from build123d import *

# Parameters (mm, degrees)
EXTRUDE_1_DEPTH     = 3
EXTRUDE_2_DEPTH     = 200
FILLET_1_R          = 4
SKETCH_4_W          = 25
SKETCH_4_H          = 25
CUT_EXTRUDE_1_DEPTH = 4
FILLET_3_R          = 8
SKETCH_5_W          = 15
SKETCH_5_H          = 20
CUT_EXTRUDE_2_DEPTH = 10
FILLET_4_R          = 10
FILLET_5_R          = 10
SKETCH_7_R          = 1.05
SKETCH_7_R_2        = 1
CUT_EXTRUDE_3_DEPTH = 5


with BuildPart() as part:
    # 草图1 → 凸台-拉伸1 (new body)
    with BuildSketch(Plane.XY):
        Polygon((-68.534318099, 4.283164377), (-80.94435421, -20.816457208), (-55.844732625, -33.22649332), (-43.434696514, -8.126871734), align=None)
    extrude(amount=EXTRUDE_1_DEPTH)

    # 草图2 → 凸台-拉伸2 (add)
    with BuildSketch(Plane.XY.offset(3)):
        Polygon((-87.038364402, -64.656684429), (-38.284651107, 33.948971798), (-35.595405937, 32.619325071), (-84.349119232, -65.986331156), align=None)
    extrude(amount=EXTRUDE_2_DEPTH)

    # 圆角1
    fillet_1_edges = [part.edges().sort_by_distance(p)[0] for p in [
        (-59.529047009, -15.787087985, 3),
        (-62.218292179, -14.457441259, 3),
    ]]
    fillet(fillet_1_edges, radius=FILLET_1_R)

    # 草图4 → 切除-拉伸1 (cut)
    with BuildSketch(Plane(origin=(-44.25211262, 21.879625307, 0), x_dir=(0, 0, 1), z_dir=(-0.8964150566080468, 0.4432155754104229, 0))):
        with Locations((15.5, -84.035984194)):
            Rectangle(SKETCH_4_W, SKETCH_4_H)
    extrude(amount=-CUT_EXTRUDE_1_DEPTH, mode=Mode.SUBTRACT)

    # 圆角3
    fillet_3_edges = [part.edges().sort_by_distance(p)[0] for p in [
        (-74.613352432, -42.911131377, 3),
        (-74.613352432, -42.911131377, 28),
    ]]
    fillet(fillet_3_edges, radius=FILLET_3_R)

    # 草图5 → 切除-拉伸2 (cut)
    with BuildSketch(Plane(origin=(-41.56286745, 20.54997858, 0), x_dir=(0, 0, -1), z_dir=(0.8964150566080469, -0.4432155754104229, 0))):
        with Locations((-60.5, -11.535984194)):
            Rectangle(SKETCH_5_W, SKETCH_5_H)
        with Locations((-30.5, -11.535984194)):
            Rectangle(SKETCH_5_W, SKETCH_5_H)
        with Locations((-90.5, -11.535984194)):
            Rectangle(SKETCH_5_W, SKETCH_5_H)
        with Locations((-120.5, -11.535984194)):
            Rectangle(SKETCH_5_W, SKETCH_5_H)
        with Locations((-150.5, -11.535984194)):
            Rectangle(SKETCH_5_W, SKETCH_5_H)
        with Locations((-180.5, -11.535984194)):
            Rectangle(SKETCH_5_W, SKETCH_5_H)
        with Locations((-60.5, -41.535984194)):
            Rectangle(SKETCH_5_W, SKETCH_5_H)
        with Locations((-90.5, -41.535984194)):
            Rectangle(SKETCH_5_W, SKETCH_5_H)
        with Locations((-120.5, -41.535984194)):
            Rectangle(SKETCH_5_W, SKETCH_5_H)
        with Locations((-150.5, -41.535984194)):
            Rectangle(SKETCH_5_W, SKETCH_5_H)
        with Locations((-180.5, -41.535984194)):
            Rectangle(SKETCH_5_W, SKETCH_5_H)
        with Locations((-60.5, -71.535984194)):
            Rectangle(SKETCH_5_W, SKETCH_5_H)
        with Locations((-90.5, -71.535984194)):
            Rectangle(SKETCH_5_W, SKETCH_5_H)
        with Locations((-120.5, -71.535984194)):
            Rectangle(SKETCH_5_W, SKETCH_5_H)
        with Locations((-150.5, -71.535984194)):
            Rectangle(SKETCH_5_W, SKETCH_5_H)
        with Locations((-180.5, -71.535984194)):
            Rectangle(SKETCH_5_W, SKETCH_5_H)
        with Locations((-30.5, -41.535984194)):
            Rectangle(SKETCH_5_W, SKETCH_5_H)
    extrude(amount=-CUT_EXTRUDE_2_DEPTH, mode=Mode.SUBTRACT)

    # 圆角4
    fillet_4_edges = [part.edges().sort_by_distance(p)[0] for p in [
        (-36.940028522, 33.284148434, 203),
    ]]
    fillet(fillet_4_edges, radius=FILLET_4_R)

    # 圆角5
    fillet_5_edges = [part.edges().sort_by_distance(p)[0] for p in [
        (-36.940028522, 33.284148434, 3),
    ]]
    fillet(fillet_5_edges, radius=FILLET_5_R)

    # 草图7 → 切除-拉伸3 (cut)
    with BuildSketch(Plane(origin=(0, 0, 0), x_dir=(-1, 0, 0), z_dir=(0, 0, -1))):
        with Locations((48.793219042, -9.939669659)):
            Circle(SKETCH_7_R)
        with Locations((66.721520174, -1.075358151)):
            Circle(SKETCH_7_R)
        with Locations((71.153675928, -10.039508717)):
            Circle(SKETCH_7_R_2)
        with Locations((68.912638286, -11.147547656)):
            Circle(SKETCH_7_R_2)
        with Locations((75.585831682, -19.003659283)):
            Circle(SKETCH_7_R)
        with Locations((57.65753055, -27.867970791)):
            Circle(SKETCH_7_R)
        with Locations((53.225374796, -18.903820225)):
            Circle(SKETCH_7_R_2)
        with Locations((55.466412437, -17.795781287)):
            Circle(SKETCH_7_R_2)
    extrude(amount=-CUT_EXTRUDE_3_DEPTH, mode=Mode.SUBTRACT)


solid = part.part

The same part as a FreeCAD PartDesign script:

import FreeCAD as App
import Part
import Sketcher
Q = App.Units.Quantity


def edges_at(feature, points):
    """Names of the edges that pass closest to the given points."""
    edges = feature.Shape.Edges
    near = lambda p: min(range(len(edges)), key=lambda i: edges[i].distToShape(Part.Vertex(*p))[0])
    return sorted({f"Edge{near(p) + 1}" for p in points})


def add_polygon(sketch, points):
    """Adds a closed chain of lines whose ends are joined by coincident constraints."""
    first, n = sketch.GeometryCount, len(points)
    for a, b in zip(points, points[1:] + points[:1]):
        sketch.addGeometry(Part.LineSegment(App.Vector(*a, 0), App.Vector(*b, 0)), False)
    for i in range(n):
        sketch.addConstraint(Sketcher.Constraint("Coincident", first + i, 2, first + (i + 1) % n, 1))

doc = App.newDocument("Part")
params = doc.addObject("Spreadsheet::Sheet", "Params")
for row, (alias, value) in enumerate([
    ("sketch1_length", "28 mm"),
    ("pad1_length", "3 mm"),
    ("sketch2_length", "110 mm"),
    ("sketch2_length2", "3 mm"),
    ("pad2_length", "200 mm"),
    ("fillet_radius", "4 mm"),
    ("sketch3_width", "25 mm"),
    ("pocket1_length", "4 mm"),
    ("fillet2_radius", "8 mm"),
    ("sketch4_width", "15 mm"),
    ("sketch4_height", "20 mm"),
    ("pocket2_length", "10 mm"),
    ("fillet3_radius", "10 mm"),
    ("fillet4_radius", "10 mm"),
    ("sketch5_diameter", "2 mm"),
    ("sketch5_diameter2", "2.1 mm"),
    ("pocket3_length", "5 mm"),
], start=1):
    params.set(f"A{row}", alias)
    params.set(f"B{row}", "=" + value)
    params.setAlias(f"B{row}", alias)

body = doc.addObject("PartDesign::Body", "Body")

sketch1 = body.newObject("Sketcher::SketchObject", "Sketch")
sketch1.AttachmentSupport = (doc.getObject("XY_Plane"), [""])
sketch1.MapMode = "FlatFace"
add_polygon(sketch1, [(-69, 4), (-81, -21), (-56, -33), (-43, -8)])
sketch1.addConstraint(Sketcher.Constraint("Perpendicular", 0, 1))
sketch1.addConstraint(Sketcher.Constraint("Perpendicular", 1, 2))
sketch1.addConstraint(Sketcher.Constraint("Perpendicular", 2, 3))
sketch1.addConstraint(Sketcher.Constraint("Equal", 0, 1))
sketch1.addConstraint(Sketcher.Constraint("Distance", 0, Q("28 mm")))
sketch1.addConstraint(Sketcher.Constraint("DistanceY", 2, 2, -1, 1, Q("8.126872 mm")))
sketch1.addConstraint(Sketcher.Constraint("DistanceX", 3, 2, -1, 1, Q("68.534318 mm")))
sketch1.addConstraint(Sketcher.Constraint("DistanceX", 0, 2, 1, 2, Q("25.099622 mm")))
sketch1.setExpression("Constraints[8]", "Params.sketch1_length")
pad1 = body.newObject("PartDesign::Pad", "Pad")
pad1.Profile = sketch1
pad1.setExpression("Length", "Params.pad1_length")

sketch2 = body.newObject("Sketcher::SketchObject", "Sketch001")
sketch2.AttachmentSupport = (doc.getObject("XY_Plane"), [""])
sketch2.MapMode = "FlatFace"
sketch2.AttachmentOffset = App.Placement(App.Vector(0, 0, 3), App.Rotation())
add_polygon(sketch2, [(-38.3, 33.9), (-87, -64.7), (-84.3, -66), (-35.6, 32.6)])
sketch2.addConstraint(Sketcher.Constraint("Perpendicular", 0, 1))
sketch2.addConstraint(Sketcher.Constraint("Perpendicular", 1, 2))
sketch2.addConstraint(Sketcher.Constraint("Perpendicular", 2, 3))
sketch2.addConstraint(Sketcher.Constraint("Distance", 0, Q("110 mm")))
sketch2.addConstraint(Sketcher.Constraint("Distance", 1, Q("3 mm")))
sketch2.addConstraint(Sketcher.Constraint("DistanceX", 1, 2, -1, 1, Q("84.349119 mm")))
sketch2.addConstraint(Sketcher.Constraint("DistanceY", 1, 2, -1, 1, Q("65.986331 mm")))
sketch2.addConstraint(Sketcher.Constraint("DistanceX", 3, 2, -1, 1, Q("38.284651 mm")))
sketch2.setExpression("Constraints[7]", "Params.sketch2_length")
sketch2.setExpression("Constraints[8]", "Params.sketch2_length2")
pad2 = body.newObject("PartDesign::Pad", "Pad001")
pad2.Profile = sketch2
pad2.setExpression("Length", "Params.pad2_length")
doc.recompute()

fillet = body.newObject("PartDesign::Fillet", "Fillet")
fillet.Base = (pad2, edges_at(pad2, [(-59.529, -15.787, 3), (-62.218, -14.457, 3)]))
fillet.setExpression("Radius", "Params.fillet_radius")

sketch3 = body.newObject("Sketcher::SketchObject", "Sketch002")
sketch3.Placement = App.Placement(App.Vector(-44.252113, 21.879625, 0), App.Rotation(App.Vector(0, 0, 1), App.Vector(0.443215575, 0.896415057, 0), App.Vector(-0.896415057, 0.443215575, 0), "ZXY"))
add_polygon(sketch3, [(3, -72), (3, -97), (28, -97), (28, -72)])
sketch3.addConstraint(Sketcher.Constraint("Vertical", 0))
sketch3.addConstraint(Sketcher.Constraint("Horizontal", 1))
sketch3.addConstraint(Sketcher.Constraint("Vertical", 2))
sketch3.addConstraint(Sketcher.Constraint("Horizontal", 3))
sketch3.addConstraint(Sketcher.Constraint("Equal", 3, 0))
sketch3.addConstraint(Sketcher.Constraint("DistanceX", 1, 1, 1, 2, Q("25 mm")))
sketch3.addConstraint(Sketcher.Constraint("DistanceX", -1, 1, 0, 2, Q("3 mm")))
sketch3.addConstraint(Sketcher.Constraint("DistanceY", 0, 2, -1, 1, Q("96.535984 mm")))
sketch3.setExpression("Constraints[9]", "Params.sketch3_width")
pocket1 = body.newObject("PartDesign::Pocket", "Pocket")
pocket1.Profile = sketch3
pocket1.setExpression("Length", "Params.pocket1_length")
doc.recompute()

fillet2 = body.newObject("PartDesign::Fillet", "Fillet001")
fillet2.Base = (pocket1, edges_at(pocket1, [(-74.613, -42.911, 3), (-74.613, -42.911, 28)]))
fillet2.setExpression("Radius", "Params.fillet2_radius")

sketch4 = body.newObject("Sketcher::SketchObject", "Sketch003")
sketch4.Placement = App.Placement(App.Vector(-41.562867, 20.549979, 0), App.Rotation(App.Vector(0, 0, -1), App.Vector(0.443215575, 0.896415057, 0), App.Vector(0.896415057, -0.443215575, 0), "ZXY"))
add_polygon(sketch4, [(-68, -2), (-68, -22), (-53, -22), (-53, -2)])
add_polygon(sketch4, [(-38, -2), (-38, -22), (-23, -22), (-23, -2)])
add_polygon(sketch4, [(-98, -2), (-98, -22), (-83, -22), (-83, -2)])
add_polygon(sketch4, [(-128, -2), (-128, -22), (-113, -22), (-113, -2)])
add_polygon(sketch4, [(-158, -2), (-158, -22), (-143, -22), (-143, -2)])
add_polygon(sketch4, [(-188, -2), (-188, -22), (-173, -22), (-173, -2)])
add_polygon(sketch4, [(-68, -32), (-68, -52), (-53, -52), (-53, -32)])
add_polygon(sketch4, [(-98, -32), (-98, -52), (-83, -52), (-83, -32)])
add_polygon(sketch4, [(-128, -32), (-128, -52), (-113, -52), (-113, -32)])
add_polygon(sketch4, [(-158, -32), (-158, -52), (-143, -52), (-143, -32)])
add_polygon(sketch4, [(-188, -32), (-188, -52), (-173, -52), (-173, -32)])
add_polygon(sketch4, [(-68, -62), (-68, -82), (-53, -82), (-53, -62)])
add_polygon(sketch4, [(-98, -62), (-98, -82), (-83, -82), (-83, -62)])
add_polygon(sketch4, [(-128, -62), (-128, -82), (-113, -82), (-113, -62)])
add_polygon(sketch4, [(-158, -62), (-158, -82), (-143, -82), (-143, -62)])
add_polygon(sketch4, [(-188, -62), (-188, -82), (-173, -82), (-173, -62)])
add_polygon(sketch4, [(-38, -32), (-38, -52), (-23, -52), (-23, -32)])
sketch4.addConstraint(Sketcher.Constraint("Vertical", 0))
sketch4.addConstraint(Sketcher.Constraint("Horizontal", 1))
sketch4.addConstraint(Sketcher.Constraint("Vertical", 2))
sketch4.addConstraint(Sketcher.Constraint("Horizontal", 3))
sketch4.addConstraint(Sketcher.Constraint("Vertical", 4))
sketch4.addConstraint(Sketcher.Constraint("Horizontal", 5))
sketch4.addConstraint(Sketcher.Constraint("Vertical", 6))
sketch4.addConstraint(Sketcher.Constraint("Horizontal", 7))
sketch4.addConstraint(Sketcher.Constraint("Vertical", 8))
sketch4.addConstraint(Sketcher.Constraint("Horizontal", 9))
sketch4.addConstraint(Sketcher.Constraint("Vertical", 10))
sketch4.addConstraint(Sketcher.Constraint("Horizontal", 11))
sketch4.addConstraint(Sketcher.Constraint("Vertical", 12))
sketch4.addConstraint(Sketcher.Constraint("Horizontal", 13))
sketch4.addConstraint(Sketcher.Constraint("Vertical", 14))
sketch4.addConstraint(Sketcher.Constraint("Horizontal", 15))
sketch4.addConstraint(Sketcher.Constraint("Vertical", 16))
sketch4.addConstraint(Sketcher.Constraint("Horizontal", 17))
sketch4.addConstraint(Sketcher.Constraint("Vertical", 18))
sketch4.addConstraint(Sketcher.Constraint("Horizontal", 19))
sketch4.addConstraint(Sketcher.Constraint("Vertical", 20))
sketch4.addConstraint(Sketcher.Constraint("Horizontal", 21))
sketch4.addConstraint(Sketcher.Constraint("Vertical", 22))
sketch4.addConstraint(Sketcher.Constraint("Horizontal", 23))
sketch4.addConstraint(Sketcher.Constraint("Vertical", 24))
sketch4.addConstraint(Sketcher.Constraint("Horizontal", 25))
sketch4.addConstraint(Sketcher.Constraint("Vertical", 26))
sketch4.addConstraint(Sketcher.Constraint("Horizontal", 27))
sketch4.addConstraint(Sketcher.Constraint("Vertical", 28))
sketch4.addConstraint(Sketcher.Constraint("Horizontal", 29))
sketch4.addConstraint(Sketcher.Constraint("Vertical", 30))
sketch4.addConstraint(Sketcher.Constraint("Horizontal", 31))
sketch4.addConstraint(Sketcher.Constraint("Vertical", 32))
sketch4.addConstraint(Sketcher.Constraint("Horizontal", 33))
sketch4.addConstraint(Sketcher.Constraint("Vertical", 34))
sketch4.addConstraint(Sketcher.Constraint("Horizontal", 35))
sketch4.addConstraint(Sketcher.Constraint("Vertical", 36))
sketch4.addConstraint(Sketcher.Constraint("Horizontal", 37))
sketch4.addConstraint(Sketcher.Constraint("Vertical", 38))
sketch4.addConstraint(Sketcher.Constraint("Horizontal", 39))
sketch4.addConstraint(Sketcher.Constraint("Vertical", 40))
sketch4.addConstraint(Sketcher.Constraint("Horizontal", 41))
sketch4.addConstraint(Sketcher.Constraint("Vertical", 42))
sketch4.addConstraint(Sketcher.Constraint("Horizontal", 43))
sketch4.addConstraint(Sketcher.Constraint("Vertical", 44))
sketch4.addConstraint(Sketcher.Constraint("Horizontal", 45))
sketch4.addConstraint(Sketcher.Constraint("Vertical", 46))
sketch4.addConstraint(Sketcher.Constraint("Horizontal", 47))
sketch4.addConstraint(Sketcher.Constraint("Vertical", 48))
sketch4.addConstraint(Sketcher.Constraint("Horizontal", 49))
sketch4.addConstraint(Sketcher.Constraint("Vertical", 50))
sketch4.addConstraint(Sketcher.Constraint("Horizontal", 51))
sketch4.addConstraint(Sketcher.Constraint("Vertical", 52))
sketch4.addConstraint(Sketcher.Constraint("Horizontal", 53))
sketch4.addConstraint(Sketcher.Constraint("Vertical", 54))
sketch4.addConstraint(Sketcher.Constraint("Horizontal", 55))
sketch4.addConstraint(Sketcher.Constraint("Vertical", 56))
sketch4.addConstraint(Sketcher.Constraint("Horizontal", 57))
sketch4.addConstraint(Sketcher.Constraint("Vertical", 58))
sketch4.addConstraint(Sketcher.Constraint("Horizontal", 59))
sketch4.addConstraint(Sketcher.Constraint("Vertical", 60))
sketch4.addConstraint(Sketcher.Constraint("Horizontal", 61))
sketch4.addConstraint(Sketcher.Constraint("Vertical", 62))
sketch4.addConstraint(Sketcher.Constraint("Horizontal", 63))
sketch4.addConstraint(Sketcher.Constraint("Vertical", 64))
sketch4.addConstraint(Sketcher.Constraint("Horizontal", 65))
sketch4.addConstraint(Sketcher.Constraint("Vertical", 66))
sketch4.addConstraint(Sketcher.Constraint("Horizontal", 67))
sketch4.addConstraint(Sketcher.Constraint("Horizontal", 1, 2, 4, 2))
sketch4.addConstraint(Sketcher.Constraint("Horizontal", 3, 2, 6, 2))
sketch4.addConstraint(Sketcher.Constraint("Horizontal", 5, 2, 8, 2))
sketch4.addConstraint(Sketcher.Constraint("Horizontal", 7, 2, 10, 2))
sketch4.addConstraint(Sketcher.Constraint("Horizontal", 9, 2, 12, 2))
sketch4.addConstraint(Sketcher.Constraint("Horizontal", 11, 2, 14, 2))
sketch4.addConstraint(Sketcher.Constraint("Horizontal", 13, 2, 16, 2))
sketch4.addConstraint(Sketcher.Constraint("Horizontal", 15, 2, 18, 2))
sketch4.addConstraint(Sketcher.Constraint("Horizontal", 17, 2, 20, 2))
sketch4.addConstraint(Sketcher.Constraint("Horizontal", 19, 2, 22, 2))
sketch4.addConstraint(Sketcher.Constraint("Horizontal", 25, 2, 28, 2))
sketch4.addConstraint(Sketcher.Constraint("Horizontal", 27, 2, 30, 2))
sketch4.addConstraint(Sketcher.Constraint("Horizontal", 29, 2, 32, 2))
sketch4.addConstraint(Sketcher.Constraint("Horizontal", 31, 2, 34, 2))
sketch4.addConstraint(Sketcher.Constraint("Horizontal", 33, 2, 36, 2))
sketch4.addConstraint(Sketcher.Constraint("Horizontal", 35, 2, 38, 2))
sketch4.addConstraint(Sketcher.Constraint("Horizontal", 37, 2, 40, 2))
sketch4.addConstraint(Sketcher.Constraint("Horizontal", 39, 2, 42, 2))
sketch4.addConstraint(Sketcher.Constraint("Horizontal", 45, 2, 48, 2))
sketch4.addConstraint(Sketcher.Constraint("Horizontal", 47, 2, 50, 2))
sketch4.addConstraint(Sketcher.Constraint("Horizontal", 49, 2, 52, 2))
sketch4.addConstraint(Sketcher.Constraint("Horizontal", 51, 2, 54, 2))
sketch4.addConstraint(Sketcher.Constraint("Horizontal", 53, 2, 56, 2))
sketch4.addConstraint(Sketcher.Constraint("Horizontal", 55, 2, 58, 2))
sketch4.addConstraint(Sketcher.Constraint("Horizontal", 57, 2, 60, 2))
sketch4.addConstraint(Sketcher.Constraint("Horizontal", 59, 2, 62, 2))
sketch4.addConstraint(Sketcher.Constraint("Horizontal", 41, 2, 64, 2))
sketch4.addConstraint(Sketcher.Constraint("Horizontal", 43, 2, 66, 2))
sketch4.addConstraint(Sketcher.Constraint("Vertical", 3, 2, 24, 2))
sketch4.addConstraint(Sketcher.Constraint("Vertical", 2, 2, 25, 2))
sketch4.addConstraint(Sketcher.Constraint("Vertical", 11, 2, 28, 2))
sketch4.addConstraint(Sketcher.Constraint("Vertical", 10, 2, 29, 2))
sketch4.addConstraint(Sketcher.Constraint("Vertical", 15, 2, 32, 2))
sketch4.addConstraint(Sketcher.Constraint("Vertical", 14, 2, 33, 2))
sketch4.addConstraint(Sketcher.Constraint("Vertical", 19, 2, 36, 2))
sketch4.addConstraint(Sketcher.Constraint("Vertical", 18, 2, 37, 2))
sketch4.addConstraint(Sketcher.Constraint("Vertical", 23, 2, 40, 2))
sketch4.addConstraint(Sketcher.Constraint("Vertical", 22, 2, 41, 2))
sketch4.addConstraint(Sketcher.Constraint("Vertical", 27, 2, 44, 2))
sketch4.addConstraint(Sketcher.Constraint("Vertical", 26, 2, 45, 2))
sketch4.addConstraint(Sketcher.Constraint("Vertical", 31, 2, 48, 2))
sketch4.addConstraint(Sketcher.Constraint("Vertical", 30, 2, 49, 2))
sketch4.addConstraint(Sketcher.Constraint("Vertical", 35, 2, 52, 2))
sketch4.addConstraint(Sketcher.Constraint("Vertical", 34, 2, 53, 2))
sketch4.addConstraint(Sketcher.Constraint("Vertical", 39, 2, 56, 2))
sketch4.addConstraint(Sketcher.Constraint("Vertical", 38, 2, 57, 2))
sketch4.addConstraint(Sketcher.Constraint("Vertical", 43, 2, 60, 2))
sketch4.addConstraint(Sketcher.Constraint("Vertical", 42, 2, 61, 2))
sketch4.addConstraint(Sketcher.Constraint("Vertical", 7, 2, 64, 2))
sketch4.addConstraint(Sketcher.Constraint("Vertical", 6, 2, 65, 2))
sketch4.addConstraint(Sketcher.Constraint("Equal", 3, 5))
sketch4.addConstraint(Sketcher.Constraint("Equal", 7, 9))
sketch4.addConstraint(Sketcher.Constraint("Equal", 11, 13))
sketch4.addConstraint(Sketcher.Constraint("Equal", 15, 17))
sketch4.addConstraint(Sketcher.Constraint("Equal", 19, 21))
sketch4.addConstraint(Sketcher.Constraint("Equal", 22, 24))
sketch4.addConstraint(Sketcher.Constraint("Equal", 42, 44))
sketch4.addConstraint(Sketcher.Constraint("DistanceX", 1, 1, 1, 2, Q("15 mm")))
sketch4.addConstraint(Sketcher.Constraint("DistanceY", 0, 2, 0, 1, Q("20 mm")))
sketch4.addConstraint(Sketcher.Constraint("DistanceX", 0, 2, -1, 1, Q("68 mm")))
sketch4.addConstraint(Sketcher.Constraint("DistanceX", 4, 2, -1, 1, Q("38 mm")))
sketch4.addConstraint(Sketcher.Constraint("DistanceX", 8, 2, -1, 1, Q("98 mm")))
sketch4.addConstraint(Sketcher.Constraint("DistanceX", 12, 2, -1, 1, Q("128 mm")))
sketch4.addConstraint(Sketcher.Constraint("DistanceX", 16, 2, -1, 1, Q("158 mm")))
sketch4.addConstraint(Sketcher.Constraint("DistanceX", 20, 2, -1, 1, Q("188 mm")))
sketch4.addConstraint(Sketcher.Constraint("DistanceY", 0, 2, -1, 1, Q("21.535984 mm")))
sketch4.addConstraint(Sketcher.Constraint("DistanceY", 24, 2, -1, 1, Q("51.535984 mm")))
sketch4.addConstraint(Sketcher.Constraint("DistanceY", 44, 2, -1, 1, Q("81.535984 mm")))
sketch4.setExpression("Constraints[193]", "Params.sketch4_width")
sketch4.setExpression("Constraints[194]", "Params.sketch4_height")
pocket2 = body.newObject("PartDesign::Pocket", "Pocket001")
pocket2.Profile = sketch4
pocket2.setExpression("Length", "Params.pocket2_length")
doc.recompute()

fillet3 = body.newObject("PartDesign::Fillet", "Fillet002")
fillet3.Base = (pocket2, edges_at(pocket2, [(-36.94, 33.284, 203)]))
fillet3.setExpression("Radius", "Params.fillet3_radius")
doc.recompute()

fillet4 = body.newObject("PartDesign::Fillet", "Fillet003")
fillet4.Base = (fillet3, edges_at(fillet3, [(-36.94, 33.284, 3)]))
fillet4.setExpression("Radius", "Params.fillet4_radius")

sketch5 = body.newObject("Sketcher::SketchObject", "Sketch004")
sketch5.AttachmentSupport = (doc.getObject("XY_Plane"), [""])
sketch5.MapMode = "FlatFace"
sketch5.addGeometry(Part.Circle(App.Vector(-48.8, -9.9, 0), App.Vector(0, 0, 1), 1.1), False)
sketch5.addGeometry(Part.Circle(App.Vector(-66.7, -1.1, 0), App.Vector(0, 0, 1), 1.1), False)
sketch5.addGeometry(Part.Circle(App.Vector(-71.2, -10, 0), App.Vector(0, 0, 1), 1), False)
sketch5.addGeometry(Part.Circle(App.Vector(-68.9, -11.1, 0), App.Vector(0, 0, 1), 1), False)
sketch5.addGeometry(Part.Circle(App.Vector(-75.6, -19, 0), App.Vector(0, 0, 1), 1.1), False)
sketch5.addGeometry(Part.Circle(App.Vector(-57.7, -27.9, 0), App.Vector(0, 0, 1), 1.1), False)
sketch5.addGeometry(Part.Circle(App.Vector(-53.2, -18.9, 0), App.Vector(0, 0, 1), 1), False)
sketch5.addGeometry(Part.Circle(App.Vector(-55.5, -17.8, 0), App.Vector(0, 0, 1), 1), False)
sketch5.addConstraint(Sketcher.Constraint("Equal", 0, 1))
sketch5.addConstraint(Sketcher.Constraint("Equal", 2, 3))
sketch5.addConstraint(Sketcher.Constraint("Equal", 1, 4))
sketch5.addConstraint(Sketcher.Constraint("Equal", 4, 5))
sketch5.addConstraint(Sketcher.Constraint("Equal", 3, 6))
sketch5.addConstraint(Sketcher.Constraint("Equal", 6, 7))
sketch5.addConstraint(Sketcher.Constraint("Diameter", 2, Q("2 mm")))
sketch5.addConstraint(Sketcher.Constraint("Diameter", 0, Q("2.1 mm")))
sketch5.addConstraint(Sketcher.Constraint("DistanceX", 1, 3, 0, 3, Q("17.928301 mm")))
sketch5.addConstraint(Sketcher.Constraint("DistanceY", 4, 3, 1, 3, Q("17.928301 mm")))
sketch5.addConstraint(Sketcher.Constraint("DistanceY", 5, 3, 0, 3, Q("17.928301 mm")))
sketch5.addConstraint(Sketcher.Constraint("DistanceX", 4, 3, 5, 3, Q("17.928301 mm")))
sketch5.addConstraint(Sketcher.Constraint("DistanceX", 2, 3, 6, 3, Q("17.928301 mm")))
sketch5.addConstraint(Sketcher.Constraint("DistanceX", 0, 3, -1, 1, Q("48.793219 mm")))
sketch5.addConstraint(Sketcher.Constraint("DistanceY", 0, 3, -1, 1, Q("9.93967 mm")))
sketch5.addConstraint(Sketcher.Constraint("DistanceY", 1, 3, -1, 1, Q("1.075358 mm")))
sketch5.addConstraint(Sketcher.Constraint("DistanceY", 2, 3, -1, 1, Q("10.039509 mm")))
sketch5.addConstraint(Sketcher.Constraint("DistanceX", 3, 3, -1, 1, Q("68.912638 mm")))
sketch5.addConstraint(Sketcher.Constraint("DistanceX", 4, 3, -1, 1, Q("75.585832 mm")))
sketch5.addConstraint(Sketcher.Constraint("DistanceY", 6, 3, -1, 1, Q("18.90382 mm")))
sketch5.addConstraint(Sketcher.Constraint("DistanceY", 7, 3, -1, 1, Q("17.795781 mm")))
sketch5.addConstraint(Sketcher.Constraint("DistanceY", 3, 3, 2, 3, Q("1.108039 mm")))
sketch5.addConstraint(Sketcher.Constraint("DistanceX", 5, 3, 7, 3, Q("2.191118 mm")))
sketch5.addConstraint(Sketcher.Constraint("DistanceX", 2, 3, -1, 1, Q("71.153676 mm")))
sketch5.setExpression("Constraints[6]", "Params.sketch5_diameter")
sketch5.setExpression("Constraints[7]", "Params.sketch5_diameter2")
pocket3 = body.newObject("PartDesign::Pocket", "Pocket002")
pocket3.Profile = sketch5
pocket3.setExpression("Length", "Params.pocket3_length")
pocket3.Reversed = True

doc.recompute()
